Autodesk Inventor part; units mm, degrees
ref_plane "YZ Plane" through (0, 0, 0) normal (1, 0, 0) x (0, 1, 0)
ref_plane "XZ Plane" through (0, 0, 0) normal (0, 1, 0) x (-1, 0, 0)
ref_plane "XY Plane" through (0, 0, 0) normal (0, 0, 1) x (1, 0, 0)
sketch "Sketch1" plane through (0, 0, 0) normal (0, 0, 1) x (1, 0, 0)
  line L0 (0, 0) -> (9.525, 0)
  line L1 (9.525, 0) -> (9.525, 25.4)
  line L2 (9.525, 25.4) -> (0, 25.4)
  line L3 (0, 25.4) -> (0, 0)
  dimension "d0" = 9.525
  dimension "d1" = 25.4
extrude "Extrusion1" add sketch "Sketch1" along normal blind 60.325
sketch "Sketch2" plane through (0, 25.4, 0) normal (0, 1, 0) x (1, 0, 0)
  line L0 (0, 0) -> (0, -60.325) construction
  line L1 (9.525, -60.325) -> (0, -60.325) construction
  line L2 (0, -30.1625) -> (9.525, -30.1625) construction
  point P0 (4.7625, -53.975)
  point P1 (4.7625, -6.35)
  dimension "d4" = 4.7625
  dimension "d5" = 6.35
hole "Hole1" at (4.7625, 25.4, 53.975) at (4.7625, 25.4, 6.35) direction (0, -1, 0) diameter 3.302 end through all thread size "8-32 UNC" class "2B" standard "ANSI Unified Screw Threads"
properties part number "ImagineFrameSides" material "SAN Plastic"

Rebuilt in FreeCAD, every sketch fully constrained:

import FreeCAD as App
import Part
import Sketcher
from FreeCAD import Vector
Q = App.Units.Quantity


def add_polygon(sketch, points):
    """Adds a closed chain of lines whose ends are joined by coincident constraints."""
    first, n = sketch.GeometryCount, len(points)
    for a, b in zip(points, points[1:] + points[:1]):
        sketch.addGeometry(Part.LineSegment(App.Vector(*a, 0), App.Vector(*b, 0)), False)
    for i in range(n):
        sketch.addConstraint(Sketcher.Constraint("Coincident", first + i, 2, first + (i + 1) % n, 1))

doc = App.newDocument("Part")
body = doc.addObject("PartDesign::Body", "Body")

sketch1 = body.newObject("Sketcher::SketchObject", "Sketch")
sketch1.AttachmentSupport = (doc.getObject("XY_Plane"), [""])
sketch1.MapMode = "FlatFace"
add_polygon(sketch1, [(0, 25), (0, 0), (10, 0), (10, 25)])
sketch1.addConstraint([
    Sketcher.Constraint("Vertical", 0),
    Sketcher.Constraint("Horizontal", 1),
    Sketcher.Constraint("Vertical", 2),
    Sketcher.Constraint("Horizontal", 3),
    Sketcher.Constraint("Coincident", 0, 2, -1, 1),
    Sketcher.Constraint("DistanceY", 0, 2, 0, 1, Q("1 in")),
    Sketcher.Constraint("DistanceX", 1, 1, 1, 2, Q("0.375 in")),
])
pad1 = body.newObject("PartDesign::Pad", "Pad")
pad1.Profile = sketch1
pad1.Length = Q("2.375 in")

sketch2 = body.newObject("Sketcher::SketchObject", "Sketch001")
sketch2.AttachmentSupport = (doc.getObject("XZ_Plane"), [""])
sketch2.MapMode = "FlatFace"
sketch2.AttachmentOffset = App.Placement(Vector(0, 0, -1 * 25.4), App.Rotation())
sketch2.addGeometry([
    Part.Circle(Vector(4.8, 54, 0), Vector(0, 0, 1), 1.7),
    Part.Circle(Vector(4.8, 6.3, 0), Vector(0, 0, 1), 1.7),
], False)
sketch2.addConstraint([
    Sketcher.Constraint("Equal", 0, 1),
    Sketcher.Constraint("Vertical", 0, 3, 1, 3),
    Sketcher.Constraint("Diameter", 0, Q("0.13 in")),
    Sketcher.Constraint("DistanceY", -1, 1, 1, 3, Q("0.25 in")),
    Sketcher.Constraint("DistanceX", -1, 1, 0, 3, Q("0.1875 in")),
    Sketcher.Constraint("DistanceY", -1, 1, 0, 3, Q("2.125 in")),
])
doc.recompute()
hole = body.newObject("PartDesign::Hole", "Hole")
hole.Profile = sketch2
hole.ThreadType = "None"
hole.Diameter = Q("0.13 in")
hole.DepthType = "ThroughAll"
hole.Reversed = True

doc.recompute()
